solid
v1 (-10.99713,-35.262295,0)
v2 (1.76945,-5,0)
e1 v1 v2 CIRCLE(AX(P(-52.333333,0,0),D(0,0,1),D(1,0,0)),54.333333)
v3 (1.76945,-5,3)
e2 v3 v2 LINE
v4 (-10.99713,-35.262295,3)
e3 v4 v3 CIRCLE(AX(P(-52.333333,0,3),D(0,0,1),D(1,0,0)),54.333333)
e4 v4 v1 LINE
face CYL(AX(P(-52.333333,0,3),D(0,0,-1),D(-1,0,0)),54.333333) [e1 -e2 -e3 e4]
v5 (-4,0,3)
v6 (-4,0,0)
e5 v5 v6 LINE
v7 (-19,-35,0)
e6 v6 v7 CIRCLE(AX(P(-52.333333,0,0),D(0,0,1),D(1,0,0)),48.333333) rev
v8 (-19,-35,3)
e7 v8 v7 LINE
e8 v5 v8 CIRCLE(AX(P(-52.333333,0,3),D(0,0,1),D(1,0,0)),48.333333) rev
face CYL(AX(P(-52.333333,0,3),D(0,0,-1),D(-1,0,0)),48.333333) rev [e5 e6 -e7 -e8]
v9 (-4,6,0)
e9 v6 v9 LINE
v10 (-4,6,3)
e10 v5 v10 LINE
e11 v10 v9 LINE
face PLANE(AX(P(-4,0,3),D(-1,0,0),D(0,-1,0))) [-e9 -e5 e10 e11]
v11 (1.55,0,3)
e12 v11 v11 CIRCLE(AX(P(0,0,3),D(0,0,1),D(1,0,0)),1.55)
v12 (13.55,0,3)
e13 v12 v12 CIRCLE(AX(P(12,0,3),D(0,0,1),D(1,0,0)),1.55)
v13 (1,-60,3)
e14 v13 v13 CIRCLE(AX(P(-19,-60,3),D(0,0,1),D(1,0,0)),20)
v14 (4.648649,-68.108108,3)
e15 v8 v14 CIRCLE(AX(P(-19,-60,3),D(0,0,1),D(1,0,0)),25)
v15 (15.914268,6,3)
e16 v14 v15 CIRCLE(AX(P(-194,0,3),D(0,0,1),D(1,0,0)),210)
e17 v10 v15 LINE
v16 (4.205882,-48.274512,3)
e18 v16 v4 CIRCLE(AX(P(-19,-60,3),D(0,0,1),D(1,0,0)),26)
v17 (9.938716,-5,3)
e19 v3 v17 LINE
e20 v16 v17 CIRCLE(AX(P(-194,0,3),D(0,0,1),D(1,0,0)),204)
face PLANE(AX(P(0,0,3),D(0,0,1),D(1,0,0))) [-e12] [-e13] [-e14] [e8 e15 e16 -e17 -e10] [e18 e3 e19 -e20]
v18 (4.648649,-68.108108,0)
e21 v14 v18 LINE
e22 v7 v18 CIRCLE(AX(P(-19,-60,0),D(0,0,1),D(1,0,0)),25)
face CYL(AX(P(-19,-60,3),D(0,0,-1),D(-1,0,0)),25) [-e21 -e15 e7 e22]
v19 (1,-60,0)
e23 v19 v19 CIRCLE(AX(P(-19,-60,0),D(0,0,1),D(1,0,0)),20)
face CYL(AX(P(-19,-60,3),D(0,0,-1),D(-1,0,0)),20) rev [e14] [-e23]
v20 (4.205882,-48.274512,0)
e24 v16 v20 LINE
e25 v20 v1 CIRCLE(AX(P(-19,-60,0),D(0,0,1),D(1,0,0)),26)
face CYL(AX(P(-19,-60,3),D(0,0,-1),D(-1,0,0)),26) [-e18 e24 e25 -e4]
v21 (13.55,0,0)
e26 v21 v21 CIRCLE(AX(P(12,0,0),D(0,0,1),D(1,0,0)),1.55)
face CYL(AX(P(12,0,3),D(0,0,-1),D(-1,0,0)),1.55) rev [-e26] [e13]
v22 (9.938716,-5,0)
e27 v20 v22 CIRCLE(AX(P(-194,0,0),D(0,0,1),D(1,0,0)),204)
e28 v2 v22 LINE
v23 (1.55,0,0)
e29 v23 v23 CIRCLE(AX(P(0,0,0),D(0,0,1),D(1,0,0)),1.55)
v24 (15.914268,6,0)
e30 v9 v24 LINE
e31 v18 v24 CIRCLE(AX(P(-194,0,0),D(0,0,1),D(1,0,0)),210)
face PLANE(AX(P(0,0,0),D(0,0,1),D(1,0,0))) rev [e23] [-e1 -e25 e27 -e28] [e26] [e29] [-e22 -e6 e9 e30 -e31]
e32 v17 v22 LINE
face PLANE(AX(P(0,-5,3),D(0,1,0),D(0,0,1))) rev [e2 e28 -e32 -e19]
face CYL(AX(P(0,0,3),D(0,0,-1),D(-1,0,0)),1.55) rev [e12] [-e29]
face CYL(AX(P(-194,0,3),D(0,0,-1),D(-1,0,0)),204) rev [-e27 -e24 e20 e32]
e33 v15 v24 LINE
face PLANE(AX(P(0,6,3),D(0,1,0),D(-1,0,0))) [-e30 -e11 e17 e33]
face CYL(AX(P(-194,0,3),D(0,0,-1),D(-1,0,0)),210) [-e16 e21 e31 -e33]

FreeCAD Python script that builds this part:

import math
import FreeCAD as App
import Part
import Sketcher

V = App.Vector
Q = App.Units.Quantity

doc = App.newDocument("Part")
body = doc.addObject("PartDesign::Body", "Body")

sketch1 = body.newObject("Sketcher::SketchObject", "Sketch")
sketch1.AttachmentSupport = (doc.getObject("XY_Plane"), [""])
sketch1.MapMode = "FlatFace"
sketch1.addGeometry(Part.LineSegment(V(-4, 6, 0), V(-4, 0, 0)), False)
sketch1.addGeometry(Part.ArcOfCircle(Part.Circle(V(-52.333333, 0, 0), V(0, 0, 1), 48.333333), math.radians(-46.397181), math.radians(0)), False)
sketch1.addGeometry(Part.ArcOfCircle(Part.Circle(V(-19, -60, 0), V(0, 0, 1), 25), math.radians(90), math.radians(341.075356)), False)
sketch1.addGeometry(Part.ArcOfCircle(Part.Circle(V(-194, 0, 0), V(0, 0, 1), 210), math.radians(-18.924644), math.radians(0)), False)
sketch1.addGeometry(Part.ArcOfCircle(Part.Circle(V(-193.999995, 0, 0), V(0, 0, 1), 209.999995), math.radians(0), math.radians(1.637245)), False)
sketch1.addGeometry(Part.LineSegment(V(15.914268, 6, 0), V(-4, 6, 0)), False)
sketch1.addGeometry(Part.Circle(V(-19, -60, 0), V(0, 0, 1), 20), False)
sketch1.addGeometry(Part.ArcOfCircle(Part.Circle(V(-19, -60, 0), V(0, 0, 1), 26), math.radians(26.806596), math.radians(72.07314)), False)
sketch1.addGeometry(Part.ArcOfCircle(Part.Circle(V(-52.333333, 0, 0), V(0, 0, 1), 54.333333), math.radians(-40.466195), math.radians(-5.280088)), False)
sketch1.addGeometry(Part.LineSegment(V(1.76945, -5, 0), V(9.938716, -5, 0)), False)
sketch1.addGeometry(Part.ArcOfCircle(Part.Circle(V(-194, 0, 0), V(0, 0, 1), 204), math.radians(-13.688301), math.radians(-1.404449)), False)
sketch1.addGeometry(Part.Circle(V(0, 0, 0), V(0, 0, 1), 1.55), False)
sketch1.addGeometry(Part.Circle(V(12, 0, 0), V(0, 0, 1), 1.55), False)
sketch1.addConstraint(Sketcher.Constraint("Tangent", 0, 2, 1, 2))
sketch1.addConstraint(Sketcher.Constraint("Coincident", 1, 1, 2, 1))
sketch1.addConstraint(Sketcher.Constraint("Tangent", 2, 2, 3, 1))
sketch1.addConstraint(Sketcher.Constraint("Tangent", 3, 2, 4, 1))
sketch1.addConstraint(Sketcher.Constraint("Coincident", 4, 2, 5, 1))
sketch1.addConstraint(Sketcher.Constraint("Coincident", 5, 2, 0, 1))
sketch1.addConstraint(Sketcher.Constraint("Coincident", 7, 2, 8, 1))
sketch1.addConstraint(Sketcher.Constraint("Coincident", 8, 2, 9, 1))
sketch1.addConstraint(Sketcher.Constraint("Coincident", 9, 2, 10, 2))
sketch1.addConstraint(Sketcher.Constraint("Coincident", 10, 1, 7, 1))
sketch1.addConstraint(Sketcher.Constraint("Vertical", 0))
sketch1.addConstraint(Sketcher.Constraint("Horizontal", 5))
sketch1.addConstraint(Sketcher.Constraint("Horizontal", 9))
sketch1.addConstraint(Sketcher.Constraint("Coincident", 11, 3, -1, 1))
sketch1.addConstraint(Sketcher.Constraint("Coincident", 6, 3, 2, 3))
sketch1.addConstraint(Sketcher.Constraint("Coincident", 7, 3, 2, 3))
sketch1.addConstraint(Sketcher.Constraint("Coincident", 8, 3, 1, 3))
sketch1.addConstraint(Sketcher.Constraint("Coincident", 10, 3, 3, 3))
sketch1.addConstraint(Sketcher.Constraint("Equal", 11, 12))
sketch1.addConstraint(Sketcher.Constraint("PointOnObject", 1, 3, -1))
sketch1.addConstraint(Sketcher.Constraint("PointOnObject", 3, 3, -1))
sketch1.addConstraint(Sketcher.Constraint("PointOnObject", 12, 3, -1))
sketch1.addConstraint(Sketcher.Constraint("PointOnObject", 3, 2, -1))
sketch1.addConstraint(Sketcher.Constraint("Vertical", 7, 3, 1, 1))
sketch1.addConstraint(Sketcher.Constraint("Diameter", 6, Q("40 mm")))
sketch1.addConstraint(Sketcher.Constraint("Radius", 2, Q("25 mm")))
sketch1.addConstraint(Sketcher.Constraint("Radius", 3, Q("210 mm")))
sketch1.addConstraint(Sketcher.Constraint("Radius", 7, Q("26 mm")))
sketch1.addConstraint(Sketcher.Constraint("Radius", 10, Q("204 mm")))
sketch1.addConstraint(Sketcher.Constraint("Diameter", 11, Q("3.1 mm")))
sketch1.addConstraint(Sketcher.Constraint("DistanceY", 0, 2, 0, 1, Q("6 mm")))
sketch1.addConstraint(Sketcher.Constraint("DistanceX", 2, 3, -1, 1, Q("19 mm")))
sketch1.addConstraint(Sketcher.Constraint("DistanceY", 2, 3, -1, 1, Q("60 mm")))
sketch1.addConstraint(Sketcher.Constraint("DistanceX", -1, 1, 12, 3, Q("12 mm")))
sketch1.addConstraint(Sketcher.Constraint("DistanceX", 0, 2, -1, 1, Q("4 mm")))
sketch1.addConstraint(Sketcher.Constraint("DistanceY", 8, 2, -1, 1, Q("5 mm")))
sketch1.addConstraint(Sketcher.Constraint("Radius", 4, Q("209.999995 mm")))
sketch1.addConstraint(Sketcher.Constraint("Radius", 8, Q("54.333333 mm")))
pad1 = body.newObject("PartDesign::Pad", "Pad")
pad1.Profile = sketch1
pad1.Length = 3

doc.recompute()
